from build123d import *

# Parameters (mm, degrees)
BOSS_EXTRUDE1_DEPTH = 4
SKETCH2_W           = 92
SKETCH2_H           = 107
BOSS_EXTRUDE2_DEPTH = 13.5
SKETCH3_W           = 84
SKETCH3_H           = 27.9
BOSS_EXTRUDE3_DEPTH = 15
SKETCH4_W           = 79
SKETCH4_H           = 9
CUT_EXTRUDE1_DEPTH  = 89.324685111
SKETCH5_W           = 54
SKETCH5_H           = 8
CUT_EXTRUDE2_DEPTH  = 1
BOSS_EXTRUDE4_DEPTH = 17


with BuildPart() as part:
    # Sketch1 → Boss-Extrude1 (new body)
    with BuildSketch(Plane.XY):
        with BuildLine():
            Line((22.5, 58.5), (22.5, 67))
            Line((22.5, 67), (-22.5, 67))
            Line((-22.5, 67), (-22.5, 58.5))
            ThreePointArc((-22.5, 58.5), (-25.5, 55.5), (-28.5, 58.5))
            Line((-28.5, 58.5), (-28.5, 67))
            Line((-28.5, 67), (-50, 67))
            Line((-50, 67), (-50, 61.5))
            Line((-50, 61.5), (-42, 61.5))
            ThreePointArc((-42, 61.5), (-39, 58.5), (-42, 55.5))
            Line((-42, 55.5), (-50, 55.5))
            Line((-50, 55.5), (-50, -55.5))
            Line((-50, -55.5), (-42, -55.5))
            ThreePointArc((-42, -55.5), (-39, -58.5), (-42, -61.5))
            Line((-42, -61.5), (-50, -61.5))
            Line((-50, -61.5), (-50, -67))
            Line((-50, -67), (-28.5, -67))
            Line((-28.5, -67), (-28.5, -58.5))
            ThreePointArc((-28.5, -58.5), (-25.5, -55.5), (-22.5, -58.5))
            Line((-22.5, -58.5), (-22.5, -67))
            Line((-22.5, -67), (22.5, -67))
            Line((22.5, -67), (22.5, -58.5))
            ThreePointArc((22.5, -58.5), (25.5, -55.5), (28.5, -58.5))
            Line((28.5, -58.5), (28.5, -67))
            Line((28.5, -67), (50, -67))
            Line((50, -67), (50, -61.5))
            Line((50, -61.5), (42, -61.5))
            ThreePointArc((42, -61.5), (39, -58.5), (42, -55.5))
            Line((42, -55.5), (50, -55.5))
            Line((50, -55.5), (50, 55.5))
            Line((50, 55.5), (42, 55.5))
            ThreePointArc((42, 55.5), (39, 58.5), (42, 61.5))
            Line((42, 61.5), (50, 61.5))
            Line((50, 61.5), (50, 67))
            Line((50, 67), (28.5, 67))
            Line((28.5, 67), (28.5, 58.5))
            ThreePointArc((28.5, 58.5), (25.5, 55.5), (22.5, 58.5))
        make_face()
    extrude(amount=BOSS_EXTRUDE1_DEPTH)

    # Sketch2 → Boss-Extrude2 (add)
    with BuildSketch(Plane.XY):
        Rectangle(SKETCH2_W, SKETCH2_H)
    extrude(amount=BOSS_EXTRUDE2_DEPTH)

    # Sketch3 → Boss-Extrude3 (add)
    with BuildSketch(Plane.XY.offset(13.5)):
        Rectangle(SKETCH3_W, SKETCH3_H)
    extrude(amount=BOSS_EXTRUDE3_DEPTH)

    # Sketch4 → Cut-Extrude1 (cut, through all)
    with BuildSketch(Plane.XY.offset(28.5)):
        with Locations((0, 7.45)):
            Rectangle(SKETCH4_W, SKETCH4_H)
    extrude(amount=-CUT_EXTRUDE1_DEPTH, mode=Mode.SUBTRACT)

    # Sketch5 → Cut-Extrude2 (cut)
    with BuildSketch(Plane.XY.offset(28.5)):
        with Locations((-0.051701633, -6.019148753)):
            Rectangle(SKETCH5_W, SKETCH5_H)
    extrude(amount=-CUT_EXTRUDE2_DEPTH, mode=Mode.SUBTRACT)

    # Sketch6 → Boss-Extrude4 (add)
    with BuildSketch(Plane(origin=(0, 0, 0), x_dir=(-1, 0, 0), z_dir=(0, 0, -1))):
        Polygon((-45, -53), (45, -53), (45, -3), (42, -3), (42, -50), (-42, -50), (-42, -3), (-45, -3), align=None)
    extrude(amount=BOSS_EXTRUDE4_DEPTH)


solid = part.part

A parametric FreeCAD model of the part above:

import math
import FreeCAD as App
import Part
import Sketcher

V = App.Vector

doc = App.newDocument("Part")
body = doc.addObject("PartDesign::Body", "Body")

sketch1 = body.newObject("Sketcher::SketchObject", "Sketch")
sketch1.AttachmentSupport = (doc.getObject("XY_Plane"), [""])
sketch1.MapMode = "FlatFace"
sketch1.addGeometry([
    Part.LineSegment(V(22.5, 58.5, 0), V(22.5, 67, 0)),
    Part.LineSegment(V(22.5, 67, 0), V(-22.5, 67, 0)),
    Part.LineSegment(V(-22.5, 67, 0), V(-22.5, 58.5, 0)),
    Part.ArcOfCircle(Part.Circle(V(-25.5, 58.5, 0), V(0, 0, 1), 3), math.radians(180), math.radians(360)),
    Part.LineSegment(V(-28.5, 58.5, 0), V(-28.5, 67, 0)),
    Part.LineSegment(V(-28.5, 67, 0), V(-50, 67, 0)),
    Part.LineSegment(V(-50, 67, 0), V(-50, 61.5, 0)),
    Part.LineSegment(V(-50, 61.5, 0), V(-42, 61.5, 0)),
    Part.ArcOfCircle(Part.Circle(V(-42, 58.5, 0), V(0, 0, 1), 3), math.radians(-90), math.radians(90)),
    Part.LineSegment(V(-42, 55.5, 0), V(-50, 55.5, 0)),
    Part.LineSegment(V(-50, 55.5, 0), V(-50, -55.5, 0)),
    Part.LineSegment(V(-50, -55.5, 0), V(-42, -55.5, 0)),
    Part.ArcOfCircle(Part.Circle(V(-42, -58.5, 0), V(0, 0, 1), 3), math.radians(-90), math.radians(90)),
    Part.LineSegment(V(-42, -61.5, 0), V(-50, -61.5, 0)),
    Part.LineSegment(V(-50, -61.5, 0), V(-50, -67, 0)),
    Part.LineSegment(V(-50, -67, 0), V(-28.5, -67, 0)),
    Part.LineSegment(V(-28.5, -67, 0), V(-28.5, -58.5, 0)),
    Part.ArcOfCircle(Part.Circle(V(-25.5, -58.5, 0), V(0, 0, 1), 3), math.radians(0), math.radians(180)),
    Part.LineSegment(V(-22.5, -58.5, 0), V(-22.5, -67, 0)),
    Part.LineSegment(V(-22.5, -67, 0), V(22.5, -67, 0)),
    Part.LineSegment(V(22.5, -67, 0), V(22.5, -58.5, 0)),
    Part.ArcOfCircle(Part.Circle(V(25.5, -58.5, 0), V(0, 0, 1), 3), math.radians(0), math.radians(180)),
    Part.LineSegment(V(28.5, -58.5, 0), V(28.5, -67, 0)),
    Part.LineSegment(V(28.5, -67, 0), V(50, -67, 0)),
    Part.LineSegment(V(50, -67, 0), V(50, -61.5, 0)),
    Part.LineSegment(V(50, -61.5, 0), V(42, -61.5, 0)),
    Part.ArcOfCircle(Part.Circle(V(42, -58.5, 0), V(0, 0, 1), 3), math.radians(90), math.radians(270)),
    Part.LineSegment(V(42, -55.5, 0), V(50, -55.5, 0)),
    Part.LineSegment(V(50, -55.5, 0), V(50, 55.5, 0)),
    Part.LineSegment(V(50, 55.5, 0), V(42, 55.5, 0)),
    Part.ArcOfCircle(Part.Circle(V(42, 58.5, 0), V(0, 0, 1), 3), math.radians(90), math.radians(270)),
    Part.LineSegment(V(42, 61.5, 0), V(50, 61.5, 0)),
    Part.LineSegment(V(50, 61.5, 0), V(50, 67, 0)),
    Part.LineSegment(V(50, 67, 0), V(28.5, 67, 0)),
    Part.LineSegment(V(28.5, 67, 0), V(28.5, 58.5, 0)),
    Part.ArcOfCircle(Part.Circle(V(25.5, 58.5, 0), V(0, 0, 1), 3), math.radians(180), math.radians(360)),
], False)
sketch1.addConstraint([
    Sketcher.Constraint("Coincident", 0, 2, 1, 1),
    Sketcher.Constraint("Coincident", 1, 2, 2, 1),
    Sketcher.Constraint("Tangent", 2, 2, 3, 2),
    Sketcher.Constraint("Tangent", 3, 1, 4, 1),
    Sketcher.Constraint("Coincident", 4, 2, 5, 1),
    Sketcher.Constraint("Coincident", 5, 2, 6, 1),
    Sketcher.Constraint("Coincident", 6, 2, 7, 1),
    Sketcher.Constraint("Tangent", 7, 2, 8, 2),
    Sketcher.Constraint("Tangent", 8, 1, 9, 1),
    Sketcher.Constraint("Coincident", 9, 2, 10, 1),
    Sketcher.Constraint("Coincident", 10, 2, 11, 1),
    Sketcher.Constraint("Tangent", 11, 2, 12, 2),
    Sketcher.Constraint("Tangent", 12, 1, 13, 1),
    Sketcher.Constraint("Coincident", 13, 2, 14, 1),
    Sketcher.Constraint("Coincident", 14, 2, 15, 1),
    Sketcher.Constraint("Coincident", 15, 2, 16, 1),
    Sketcher.Constraint("Tangent", 16, 2, 17, 2),
    Sketcher.Constraint("Tangent", 17, 1, 18, 1),
    Sketcher.Constraint("Coincident", 18, 2, 19, 1),
    Sketcher.Constraint("Coincident", 19, 2, 20, 1),
    Sketcher.Constraint("Tangent", 20, 2, 21, 2),
    Sketcher.Constraint("Tangent", 21, 1, 22, 1),
    Sketcher.Constraint("Coincident", 22, 2, 23, 1),
    Sketcher.Constraint("Coincident", 23, 2, 24, 1),
    Sketcher.Constraint("Coincident", 24, 2, 25, 1),
    Sketcher.Constraint("Tangent", 25, 2, 26, 2),
    Sketcher.Constraint("Tangent", 26, 1, 27, 1),
    Sketcher.Constraint("Coincident", 27, 2, 28, 1),
    Sketcher.Constraint("Coincident", 28, 2, 29, 1),
    Sketcher.Constraint("Tangent", 29, 2, 30, 2),
    Sketcher.Constraint("Tangent", 30, 1, 31, 1),
    Sketcher.Constraint("Coincident", 31, 2, 32, 1),
    Sketcher.Constraint("Coincident", 32, 2, 33, 1),
    Sketcher.Constraint("Coincident", 33, 2, 34, 1),
    Sketcher.Constraint("Tangent", 34, 2, 35, 2),
    Sketcher.Constraint("Tangent", 35, 1, 0, 1),
    Sketcher.Constraint("Vertical", 0),
    Sketcher.Constraint("Horizontal", 1),
    Sketcher.Constraint("Vertical", 2),
    Sketcher.Constraint("Vertical", 4),
    Sketcher.Constraint("Horizontal", 5),
    Sketcher.Constraint("Vertical", 6),
    Sketcher.Constraint("Horizontal", 7),
    Sketcher.Constraint("Horizontal", 9),
    Sketcher.Constraint("Vertical", 10),
    Sketcher.Constraint("Horizontal", 11),
    Sketcher.Constraint("Horizontal", 13),
    Sketcher.Constraint("Vertical", 14),
    Sketcher.Constraint("Horizontal", 15),
    Sketcher.Constraint("Vertical", 16),
    Sketcher.Constraint("Vertical", 18),
    Sketcher.Constraint("Horizontal", 19),
    Sketcher.Constraint("Vertical", 20),
    Sketcher.Constraint("Vertical", 22),
    Sketcher.Constraint("Horizontal", 23),
    Sketcher.Constraint("Vertical", 24),
    Sketcher.Constraint("Horizontal", 25),
    Sketcher.Constraint("Horizontal", 27),
    Sketcher.Constraint("Vertical", 28),
    Sketcher.Constraint("Horizontal", 29),
    Sketcher.Constraint("Horizontal", 31),
    Sketcher.Constraint("Vertical", 32),
    Sketcher.Constraint("Horizontal", 33),
    Sketcher.Constraint("Vertical", 34),
    Sketcher.Constraint("Equal", 3, 8),
    Sketcher.Constraint("Equal", 8, 12),
    Sketcher.Constraint("Equal", 12, 17),
    Sketcher.Constraint("Equal", 17, 21),
    Sketcher.Constraint("Equal", 21, 26),
    Sketcher.Constraint("Equal", 26, 30),
    Sketcher.Constraint("Equal", 30, 35),
    Sketcher.Constraint("Symmetric", 3, 3, 21, 3, -1, 1),
    Sketcher.Constraint("Symmetric", 8, 3, 26, 3, -1, 1),
    Sketcher.Constraint("Symmetric", 12, 3, 30, 3, -1, 1),
    Sketcher.Constraint("Symmetric", 17, 3, 35, 3, -1, 1),
    Sketcher.Constraint("Symmetric", 5, 2, 23, 2, -1, 1),
    Sketcher.Constraint("Symmetric", 14, 2, 32, 2, -1, 1),
    Sketcher.Constraint("Symmetric", 17, 3, 21, 3, -2),
    Sketcher.Constraint("Symmetric", 12, 3, 26, 3, -2),
    Sketcher.Constraint("Symmetric", 14, 2, 23, 2, -2),
    Sketcher.Constraint("Horizontal", 3, 3, 8, 3),
    Sketcher.Constraint("Horizontal", 1, 2, 4, 2),
    Sketcher.Constraint("Horizontal", 15, 2, 18, 2),
    Sketcher.Constraint("Vertical", 6, 2, 9, 2),
    Sketcher.Constraint("Vertical", 24, 2, 27, 2),
    Sketcher.Constraint("Radius", 3, 3.0),
    Sketcher.Constraint("DistanceX", 1, 2, 1, 1, 45.0),
    Sketcher.Constraint("DistanceX", 7, 1, 7, 2, 8.0),
    Sketcher.Constraint("DistanceY", 10, 2, 10, 1, 111.0),
    Sketcher.Constraint("DistanceX", 5, 2, 5, 1, 21.5),
    Sketcher.Constraint("DistanceY", 0, 1, 0, 2, 8.5),
])
pad1 = body.newObject("PartDesign::Pad", "Pad")
pad1.Profile = sketch1
pad1.Length = 4

sketch2 = body.newObject("Sketcher::SketchObject", "Sketch001")
sketch2.AttachmentSupport = (doc.getObject("XY_Plane"), [""])
sketch2.MapMode = "FlatFace"
sketch2.addGeometry([
    Part.LineSegment(V(-46, 54, 0), V(-46, -54, 0)),
    Part.LineSegment(V(-46, -54, 0), V(46, -54, 0)),
    Part.LineSegment(V(46, -54, 0), V(46, 54, 0)),
    Part.LineSegment(V(46, 54, 0), V(-46, 54, 0)),
], False)
sketch2.addConstraint([
    Sketcher.Constraint("Coincident", 0, 2, 1, 1),
    Sketcher.Constraint("Coincident", 1, 2, 2, 1),
    Sketcher.Constraint("Coincident", 2, 2, 3, 1),
    Sketcher.Constraint("Coincident", 3, 2, 0, 1),
    Sketcher.Constraint("Vertical", 0),
    Sketcher.Constraint("Horizontal", 1),
    Sketcher.Constraint("Vertical", 2),
    Sketcher.Constraint("Horizontal", 3),
    Sketcher.Constraint("Symmetric", 0, 2, 2, 2, -1, 1),
    Sketcher.Constraint("DistanceX", 1, 1, 1, 2, 92.0),
    Sketcher.Constraint("DistanceY", 0, 2, 0, 1, 107.0),
])
pad2 = body.newObject("PartDesign::Pad", "Pad001")
pad2.Profile = sketch2
pad2.Length = 13.5

sketch3 = body.newObject("Sketcher::SketchObject", "Sketch002")
sketch3.AttachmentSupport = (doc.getObject("XY_Plane"), [""])
sketch3.MapMode = "FlatFace"
sketch3.AttachmentOffset = App.Placement(V(0, 0, 13.5), App.Rotation())
sketch3.addGeometry([
    Part.LineSegment(V(-42, 14, 0), V(-42, -14, 0)),
    Part.LineSegment(V(-42, -14, 0), V(42, -14, 0)),
    Part.LineSegment(V(42, -14, 0), V(42, 14, 0)),
    Part.LineSegment(V(42, 14, 0), V(-42, 14, 0)),
], False)
sketch3.addConstraint([
    Sketcher.Constraint("Coincident", 0, 2, 1, 1),
    Sketcher.Constraint("Coincident", 1, 2, 2, 1),
    Sketcher.Constraint("Coincident", 2, 2, 3, 1),
    Sketcher.Constraint("Coincident", 3, 2, 0, 1),
    Sketcher.Constraint("Vertical", 0),
    Sketcher.Constraint("Horizontal", 1),
    Sketcher.Constraint("Vertical", 2),
    Sketcher.Constraint("Horizontal", 3),
    Sketcher.Constraint("Symmetric", 0, 2, 2, 2, -1, 1),
    Sketcher.Constraint("DistanceX", 1, 1, 1, 2, 84.0),
    Sketcher.Constraint("DistanceY", 0, 2, 0, 1, 27.9),
])
pad3 = body.newObject("PartDesign::Pad", "Pad002")
pad3.Profile = sketch3
pad3.Length = 15

sketch4 = body.newObject("Sketcher::SketchObject", "Sketch003")
sketch4.AttachmentSupport = (doc.getObject("XY_Plane"), [""])
sketch4.MapMode = "FlatFace"
sketch4.AttachmentOffset = App.Placement(V(0, 0, 28.5), App.Rotation())
sketch4.addGeometry([
    Part.LineSegment(V(-40, 12, 0), V(-40, 3, 0)),
    Part.LineSegment(V(-40, 3, 0), V(40, 3, 0)),
    Part.LineSegment(V(40, 3, 0), V(40, 12, 0)),
    Part.LineSegment(V(40, 12, 0), V(-40, 12, 0)),
], False)
sketch4.addConstraint([
    Sketcher.Constraint("Coincident", 0, 2, 1, 1),
    Sketcher.Constraint("Coincident", 1, 2, 2, 1),
    Sketcher.Constraint("Coincident", 2, 2, 3, 1),
    Sketcher.Constraint("Coincident", 3, 2, 0, 1),
    Sketcher.Constraint("Vertical", 0),
    Sketcher.Constraint("Horizontal", 1),
    Sketcher.Constraint("Vertical", 2),
    Sketcher.Constraint("Horizontal", 3),
    Sketcher.Constraint("DistanceX", 1, 1, 1, 2, 79.0),
    Sketcher.Constraint("DistanceY", 0, 2, 0, 1, 9.0),
    Sketcher.Constraint("DistanceX", 0, 2, -1, 1, 39.5),
    Sketcher.Constraint("DistanceY", -1, 1, 0, 2, 2.95),
])
pocket1 = body.newObject("PartDesign::Pocket", "Pocket")
pocket1.Profile = sketch4
pocket1.Type = "ThroughAll"

sketch5 = body.newObject("Sketcher::SketchObject", "Sketch004")
sketch5.AttachmentSupport = (doc.getObject("XY_Plane"), [""])
sketch5.MapMode = "FlatFace"
sketch5.AttachmentOffset = App.Placement(V(0, 0, 28.5), App.Rotation())
sketch5.addGeometry([
    Part.LineSegment(V(-27, -2, 0), V(-27, -10, 0)),
    Part.LineSegment(V(-27, -10, 0), V(27, -10, 0)),
    Part.LineSegment(V(27, -10, 0), V(27, -2, 0)),
    Part.LineSegment(V(27, -2, 0), V(-27, -2, 0)),
], False)
sketch5.addConstraint([
    Sketcher.Constraint("Coincident", 0, 2, 1, 1),
    Sketcher.Constraint("Coincident", 1, 2, 2, 1),
    Sketcher.Constraint("Coincident", 2, 2, 3, 1),
    Sketcher.Constraint("Coincident", 3, 2, 0, 1),
    Sketcher.Constraint("Vertical", 0),
    Sketcher.Constraint("Horizontal", 1),
    Sketcher.Constraint("Vertical", 2),
    Sketcher.Constraint("Horizontal", 3),
    Sketcher.Constraint("DistanceX", 1, 1, 1, 2, 54.0),
    Sketcher.Constraint("DistanceY", 0, 2, 0, 1, 8.0),
    Sketcher.Constraint("DistanceX", 0, 2, -1, 1, 27.051702),
    Sketcher.Constraint("DistanceY", 0, 2, -1, 1, 10.019149),
])
pocket2 = body.newObject("PartDesign::Pocket", "Pocket001")
pocket2.Profile = sketch5
pocket2.Length = 1

sketch6 = body.newObject("Sketcher::SketchObject", "Sketch005")
sketch6.AttachmentSupport = (doc.getObject("XY_Plane"), [""])
sketch6.MapMode = "FlatFace"
sketch6.addGeometry([
    Part.LineSegment(V(45, -53, 0), V(-45, -53, 0)),
    Part.LineSegment(V(-45, -53, 0), V(-45, -3, 0)),
    Part.LineSegment(V(-45, -3, 0), V(-42, -3, 0)),
    Part.LineSegment(V(-42, -3, 0), V(-42, -50, 0)),
    Part.LineSegment(V(-42, -50, 0), V(42, -50, 0)),
    Part.LineSegment(V(42, -50, 0), V(42, -3, 0)),
    Part.LineSegment(V(42, -3, 0), V(45, -3, 0)),
    Part.LineSegment(V(45, -3, 0), V(45, -53, 0)),
], False)
sketch6.addConstraint([
    Sketcher.Constraint("Coincident", 0, 2, 1, 1),
    Sketcher.Constraint("Coincident", 1, 2, 2, 1),
    Sketcher.Constraint("Coincident", 2, 2, 3, 1),
    Sketcher.Constraint("Coincident", 3, 2, 4, 1),
    Sketcher.Constraint("Coincident", 4, 2, 5, 1),
    Sketcher.Constraint("Coincident", 5, 2, 6, 1),
    Sketcher.Constraint("Coincident", 6, 2, 7, 1),
    Sketcher.Constraint("Coincident", 7, 2, 0, 1),
    Sketcher.Constraint("Horizontal", 0),
    Sketcher.Constraint("Vertical", 1),
    Sketcher.Constraint("Horizontal", 2),
    Sketcher.Constraint("Vertical", 3),
    Sketcher.Constraint("Horizontal", 4),
    Sketcher.Constraint("Vertical", 5),
    Sketcher.Constraint("Horizontal", 6),
    Sketcher.Constraint("Vertical", 7),
    Sketcher.Constraint("Symmetric", 2, 2, 5, 2, -2),
    Sketcher.Constraint("Equal", 2, 6),
    Sketcher.Constraint("DistanceX", 0, 2, 0, 1, 90.0),
    Sketcher.Constraint("DistanceX", 2, 1, 2, 2, 3.0),
    Sketcher.Constraint("DistanceY", 1, 1, 1, 2, 50.0),
    Sketcher.Constraint("DistanceY", 3, 2, 3, 1, 47.0),
    Sketcher.Constraint("DistanceY", 0, 2, -1, 1, 53.0),
])
pad4 = body.newObject("PartDesign::Pad", "Pad003")
pad4.Profile = sketch6
pad4.Length = 17
pad4.Reversed = True

doc.recompute()
